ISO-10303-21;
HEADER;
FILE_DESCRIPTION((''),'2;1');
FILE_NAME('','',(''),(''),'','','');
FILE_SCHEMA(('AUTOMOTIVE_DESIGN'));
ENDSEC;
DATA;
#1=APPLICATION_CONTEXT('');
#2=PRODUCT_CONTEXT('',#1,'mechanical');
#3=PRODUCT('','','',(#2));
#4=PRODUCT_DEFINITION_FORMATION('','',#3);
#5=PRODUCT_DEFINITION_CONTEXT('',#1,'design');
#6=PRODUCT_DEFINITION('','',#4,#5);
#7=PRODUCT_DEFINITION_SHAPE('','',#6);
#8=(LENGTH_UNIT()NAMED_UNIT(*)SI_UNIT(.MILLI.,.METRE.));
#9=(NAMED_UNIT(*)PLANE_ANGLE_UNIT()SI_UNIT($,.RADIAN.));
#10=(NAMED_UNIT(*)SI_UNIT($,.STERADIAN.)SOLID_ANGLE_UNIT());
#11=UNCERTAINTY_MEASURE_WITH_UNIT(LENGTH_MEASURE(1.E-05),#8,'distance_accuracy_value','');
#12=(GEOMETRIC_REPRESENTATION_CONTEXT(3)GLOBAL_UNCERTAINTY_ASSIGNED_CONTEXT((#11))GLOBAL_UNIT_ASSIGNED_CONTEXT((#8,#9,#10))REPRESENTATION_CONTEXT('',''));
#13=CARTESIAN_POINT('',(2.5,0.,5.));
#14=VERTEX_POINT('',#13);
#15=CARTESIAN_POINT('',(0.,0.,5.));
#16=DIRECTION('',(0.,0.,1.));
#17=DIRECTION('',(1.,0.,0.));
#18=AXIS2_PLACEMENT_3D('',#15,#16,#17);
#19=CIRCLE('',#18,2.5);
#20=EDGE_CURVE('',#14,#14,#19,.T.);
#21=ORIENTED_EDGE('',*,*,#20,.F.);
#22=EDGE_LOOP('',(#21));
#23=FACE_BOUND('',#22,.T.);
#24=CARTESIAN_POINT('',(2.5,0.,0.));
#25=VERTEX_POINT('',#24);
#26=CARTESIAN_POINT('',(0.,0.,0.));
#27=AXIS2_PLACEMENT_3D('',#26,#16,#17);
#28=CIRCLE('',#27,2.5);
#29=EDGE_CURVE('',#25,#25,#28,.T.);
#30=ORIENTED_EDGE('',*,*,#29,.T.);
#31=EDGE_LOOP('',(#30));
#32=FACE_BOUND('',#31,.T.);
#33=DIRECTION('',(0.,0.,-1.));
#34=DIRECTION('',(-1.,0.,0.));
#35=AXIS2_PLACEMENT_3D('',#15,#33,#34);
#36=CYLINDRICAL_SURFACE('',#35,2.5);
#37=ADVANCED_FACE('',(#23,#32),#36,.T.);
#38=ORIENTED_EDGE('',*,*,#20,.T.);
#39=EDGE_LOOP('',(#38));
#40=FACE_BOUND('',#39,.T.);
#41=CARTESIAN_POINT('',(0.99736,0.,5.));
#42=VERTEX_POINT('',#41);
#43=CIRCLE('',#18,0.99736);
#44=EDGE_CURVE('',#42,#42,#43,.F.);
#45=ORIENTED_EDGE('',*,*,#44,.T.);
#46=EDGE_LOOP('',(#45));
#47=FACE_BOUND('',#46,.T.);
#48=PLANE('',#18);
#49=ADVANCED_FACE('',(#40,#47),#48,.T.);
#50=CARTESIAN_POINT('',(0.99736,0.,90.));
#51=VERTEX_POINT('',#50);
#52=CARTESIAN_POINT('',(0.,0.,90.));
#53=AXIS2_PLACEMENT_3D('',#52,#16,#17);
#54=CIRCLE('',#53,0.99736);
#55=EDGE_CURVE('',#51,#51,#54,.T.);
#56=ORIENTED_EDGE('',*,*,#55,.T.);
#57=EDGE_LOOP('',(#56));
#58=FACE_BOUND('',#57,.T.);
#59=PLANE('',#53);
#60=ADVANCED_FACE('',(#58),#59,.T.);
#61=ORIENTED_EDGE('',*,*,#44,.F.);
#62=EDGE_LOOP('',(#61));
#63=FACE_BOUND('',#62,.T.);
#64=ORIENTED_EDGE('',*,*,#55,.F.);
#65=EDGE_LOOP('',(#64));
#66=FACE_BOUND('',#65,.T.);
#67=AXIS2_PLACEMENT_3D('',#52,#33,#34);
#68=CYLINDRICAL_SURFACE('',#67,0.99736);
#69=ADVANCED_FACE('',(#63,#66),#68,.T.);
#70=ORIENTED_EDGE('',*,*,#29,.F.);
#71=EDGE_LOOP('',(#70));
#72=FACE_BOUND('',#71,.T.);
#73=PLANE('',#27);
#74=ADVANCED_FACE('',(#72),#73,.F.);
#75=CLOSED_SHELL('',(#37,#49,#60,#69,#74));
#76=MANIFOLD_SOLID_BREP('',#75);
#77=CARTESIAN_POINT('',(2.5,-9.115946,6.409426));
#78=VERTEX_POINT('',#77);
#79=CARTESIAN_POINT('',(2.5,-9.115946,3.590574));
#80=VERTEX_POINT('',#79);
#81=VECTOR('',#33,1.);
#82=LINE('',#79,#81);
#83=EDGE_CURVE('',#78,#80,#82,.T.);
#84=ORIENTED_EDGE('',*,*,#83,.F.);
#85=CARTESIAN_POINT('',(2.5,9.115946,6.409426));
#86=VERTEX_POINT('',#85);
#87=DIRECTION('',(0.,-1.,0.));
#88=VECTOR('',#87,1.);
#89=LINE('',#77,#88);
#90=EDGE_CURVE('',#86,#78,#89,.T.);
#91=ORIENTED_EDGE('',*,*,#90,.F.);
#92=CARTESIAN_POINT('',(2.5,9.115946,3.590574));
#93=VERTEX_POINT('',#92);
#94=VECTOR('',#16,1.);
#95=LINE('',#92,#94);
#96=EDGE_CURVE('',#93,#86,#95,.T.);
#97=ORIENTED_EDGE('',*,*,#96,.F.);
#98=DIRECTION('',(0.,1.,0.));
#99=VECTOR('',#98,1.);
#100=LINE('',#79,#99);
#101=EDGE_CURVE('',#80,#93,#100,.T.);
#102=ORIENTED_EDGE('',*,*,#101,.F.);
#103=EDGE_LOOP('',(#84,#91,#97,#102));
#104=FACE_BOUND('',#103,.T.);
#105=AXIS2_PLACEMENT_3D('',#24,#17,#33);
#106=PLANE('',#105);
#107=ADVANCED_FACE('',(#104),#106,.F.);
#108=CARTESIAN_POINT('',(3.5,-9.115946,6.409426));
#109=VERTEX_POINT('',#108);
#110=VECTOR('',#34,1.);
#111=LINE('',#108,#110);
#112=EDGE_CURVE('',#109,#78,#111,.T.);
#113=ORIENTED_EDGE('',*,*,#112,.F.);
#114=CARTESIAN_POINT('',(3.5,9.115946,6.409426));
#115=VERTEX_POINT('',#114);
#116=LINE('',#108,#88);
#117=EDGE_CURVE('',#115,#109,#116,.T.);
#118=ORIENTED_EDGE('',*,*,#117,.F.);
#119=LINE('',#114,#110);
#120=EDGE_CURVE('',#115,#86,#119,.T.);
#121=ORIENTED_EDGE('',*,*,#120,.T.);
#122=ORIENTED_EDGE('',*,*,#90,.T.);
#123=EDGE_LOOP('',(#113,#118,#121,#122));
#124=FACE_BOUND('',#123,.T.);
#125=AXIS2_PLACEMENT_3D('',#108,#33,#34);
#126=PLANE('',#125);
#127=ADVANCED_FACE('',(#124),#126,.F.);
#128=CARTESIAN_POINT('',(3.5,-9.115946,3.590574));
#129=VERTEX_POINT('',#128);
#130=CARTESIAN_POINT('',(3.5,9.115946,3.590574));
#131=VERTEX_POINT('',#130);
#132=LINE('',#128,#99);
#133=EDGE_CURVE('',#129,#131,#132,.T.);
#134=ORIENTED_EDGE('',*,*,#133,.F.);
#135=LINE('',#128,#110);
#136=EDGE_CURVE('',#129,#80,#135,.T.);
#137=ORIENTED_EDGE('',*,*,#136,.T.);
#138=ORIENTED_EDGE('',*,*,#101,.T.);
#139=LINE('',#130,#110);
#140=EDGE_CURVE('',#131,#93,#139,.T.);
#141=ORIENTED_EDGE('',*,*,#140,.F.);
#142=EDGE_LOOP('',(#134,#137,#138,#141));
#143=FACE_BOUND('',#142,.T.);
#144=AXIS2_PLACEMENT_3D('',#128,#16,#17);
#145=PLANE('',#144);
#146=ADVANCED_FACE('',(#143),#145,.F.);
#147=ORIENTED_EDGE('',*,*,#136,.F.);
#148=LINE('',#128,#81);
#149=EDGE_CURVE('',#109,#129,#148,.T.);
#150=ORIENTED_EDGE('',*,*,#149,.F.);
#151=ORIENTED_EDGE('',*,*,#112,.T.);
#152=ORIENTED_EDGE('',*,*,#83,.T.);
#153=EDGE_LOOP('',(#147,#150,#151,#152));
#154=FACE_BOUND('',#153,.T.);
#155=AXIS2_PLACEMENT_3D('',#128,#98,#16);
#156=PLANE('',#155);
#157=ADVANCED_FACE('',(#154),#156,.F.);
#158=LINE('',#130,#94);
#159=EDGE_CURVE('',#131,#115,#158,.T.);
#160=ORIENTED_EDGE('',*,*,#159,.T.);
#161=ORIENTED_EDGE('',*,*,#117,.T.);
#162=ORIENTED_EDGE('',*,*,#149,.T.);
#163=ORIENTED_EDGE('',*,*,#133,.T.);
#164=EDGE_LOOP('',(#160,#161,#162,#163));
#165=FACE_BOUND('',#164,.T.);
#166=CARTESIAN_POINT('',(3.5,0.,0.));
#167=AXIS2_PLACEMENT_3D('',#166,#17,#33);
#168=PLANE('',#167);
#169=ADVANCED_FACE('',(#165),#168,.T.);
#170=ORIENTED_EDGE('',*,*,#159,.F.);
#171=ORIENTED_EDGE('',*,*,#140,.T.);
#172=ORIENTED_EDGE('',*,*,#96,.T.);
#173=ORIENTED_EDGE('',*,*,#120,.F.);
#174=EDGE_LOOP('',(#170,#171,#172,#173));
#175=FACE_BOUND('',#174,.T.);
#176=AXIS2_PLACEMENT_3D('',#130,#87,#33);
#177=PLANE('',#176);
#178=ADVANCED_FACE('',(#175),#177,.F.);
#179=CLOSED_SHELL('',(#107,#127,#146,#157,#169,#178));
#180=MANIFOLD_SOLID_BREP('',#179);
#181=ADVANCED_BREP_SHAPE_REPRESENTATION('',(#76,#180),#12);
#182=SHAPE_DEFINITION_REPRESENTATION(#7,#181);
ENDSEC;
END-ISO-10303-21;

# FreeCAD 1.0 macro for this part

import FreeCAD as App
import Part
import Sketcher
from FreeCAD import Vector
Q = App.Units.Quantity


def add_polygon(sketch, points):
    """Adds a closed chain of lines whose ends are joined by coincident constraints."""
    first, n = sketch.GeometryCount, len(points)
    for a, b in zip(points, points[1:] + points[:1]):
        sketch.addGeometry(Part.LineSegment(App.Vector(*a, 0), App.Vector(*b, 0)), False)
    for i in range(n):
        sketch.addConstraint(Sketcher.Constraint("Coincident", first + i, 2, first + (i + 1) % n, 1))

doc = App.newDocument("Part")
body = doc.addObject("PartDesign::Body", "Body")

# Sketch on XY plane
sketch1 = doc.addObject("Sketcher::SketchObject", "Sketch")
body.addObject(sketch1)
sketch1.AttachmentSupport = (doc.XY_Plane, [""])
sketch1.MapMode = "FlatFace"
sketch1.addGeometry(Part.Circle(Vector(0, 0, 0), Vector(0, 0, 1), 2.5), False)
sketch1.addConstraint([
    Sketcher.Constraint("Coincident", 0, 3, -1, 1),
    Sketcher.Constraint("Diameter", 0, Q("5 mm")),
])
pad1 = doc.addObject("PartDesign::Pad", "Pad")
body.addObject(pad1)
pad1.Profile = sketch1
pad1.Length = 5

# Sketch on XY plane
sketch2 = doc.addObject("Sketcher::SketchObject", "Sketch001")
body.addObject(sketch2)
sketch2.AttachmentSupport = (doc.XY_Plane, [""])
sketch2.MapMode = "FlatFace"
sketch2.addGeometry(Part.Circle(Vector(0, 0, 0), Vector(0, 0, 1), 0.99736), False)
sketch2.addConstraint([
    Sketcher.Constraint("Coincident", 0, 3, -1, 1),
    Sketcher.Constraint("Diameter", 0, Q("1.994721 mm")),
])
pad2 = doc.addObject("PartDesign::Pad", "Pad001")
body.addObject(pad2)
pad2.Profile = sketch2
pad2.Length = 90
body2 = doc.addObject("PartDesign::Body", "Body001")

# Sketch on YZ plane
sketch3 = doc.addObject("Sketcher::SketchObject", "Sketch002")
body2.addObject(sketch3)
sketch3.AttachmentSupport = (doc.getObject("YZ_Plane001"), [""])
sketch3.MapMode = "FlatFace"
sketch3.AttachmentOffset = App.Placement(Vector(0, 0, 2.5), App.Rotation())
add_polygon(sketch3, [(9.115946, 6.409426), (-9.115946, 6.409426), (-9.115946, 3.590574), (9.115946, 3.590574)])  # lines 0-3
sketch3.addConstraint([
    Sketcher.Constraint("Horizontal", 0),
    Sketcher.Constraint("Vertical", 1),
    Sketcher.Constraint("Horizontal", 2),
    Sketcher.Constraint("Vertical", 3),
    Sketcher.Constraint("DistanceX", 0, 2, 0, 1, Q("18.231891 mm")),
    Sketcher.Constraint("DistanceY", 1, 2, 1, 1, Q("2.818852 mm")),
    Sketcher.Constraint("DistanceX", 0, 2, -1, 1, Q("9.115946 mm")),
    Sketcher.Constraint("DistanceY", -1, 1, 0, 2, Q("6.409426 mm")),
])
pad3 = doc.addObject("PartDesign::Pad", "Pad002")
body2.addObject(pad3)
pad3.Profile = sketch3
pad3.Length = 1

doc.recompute()
